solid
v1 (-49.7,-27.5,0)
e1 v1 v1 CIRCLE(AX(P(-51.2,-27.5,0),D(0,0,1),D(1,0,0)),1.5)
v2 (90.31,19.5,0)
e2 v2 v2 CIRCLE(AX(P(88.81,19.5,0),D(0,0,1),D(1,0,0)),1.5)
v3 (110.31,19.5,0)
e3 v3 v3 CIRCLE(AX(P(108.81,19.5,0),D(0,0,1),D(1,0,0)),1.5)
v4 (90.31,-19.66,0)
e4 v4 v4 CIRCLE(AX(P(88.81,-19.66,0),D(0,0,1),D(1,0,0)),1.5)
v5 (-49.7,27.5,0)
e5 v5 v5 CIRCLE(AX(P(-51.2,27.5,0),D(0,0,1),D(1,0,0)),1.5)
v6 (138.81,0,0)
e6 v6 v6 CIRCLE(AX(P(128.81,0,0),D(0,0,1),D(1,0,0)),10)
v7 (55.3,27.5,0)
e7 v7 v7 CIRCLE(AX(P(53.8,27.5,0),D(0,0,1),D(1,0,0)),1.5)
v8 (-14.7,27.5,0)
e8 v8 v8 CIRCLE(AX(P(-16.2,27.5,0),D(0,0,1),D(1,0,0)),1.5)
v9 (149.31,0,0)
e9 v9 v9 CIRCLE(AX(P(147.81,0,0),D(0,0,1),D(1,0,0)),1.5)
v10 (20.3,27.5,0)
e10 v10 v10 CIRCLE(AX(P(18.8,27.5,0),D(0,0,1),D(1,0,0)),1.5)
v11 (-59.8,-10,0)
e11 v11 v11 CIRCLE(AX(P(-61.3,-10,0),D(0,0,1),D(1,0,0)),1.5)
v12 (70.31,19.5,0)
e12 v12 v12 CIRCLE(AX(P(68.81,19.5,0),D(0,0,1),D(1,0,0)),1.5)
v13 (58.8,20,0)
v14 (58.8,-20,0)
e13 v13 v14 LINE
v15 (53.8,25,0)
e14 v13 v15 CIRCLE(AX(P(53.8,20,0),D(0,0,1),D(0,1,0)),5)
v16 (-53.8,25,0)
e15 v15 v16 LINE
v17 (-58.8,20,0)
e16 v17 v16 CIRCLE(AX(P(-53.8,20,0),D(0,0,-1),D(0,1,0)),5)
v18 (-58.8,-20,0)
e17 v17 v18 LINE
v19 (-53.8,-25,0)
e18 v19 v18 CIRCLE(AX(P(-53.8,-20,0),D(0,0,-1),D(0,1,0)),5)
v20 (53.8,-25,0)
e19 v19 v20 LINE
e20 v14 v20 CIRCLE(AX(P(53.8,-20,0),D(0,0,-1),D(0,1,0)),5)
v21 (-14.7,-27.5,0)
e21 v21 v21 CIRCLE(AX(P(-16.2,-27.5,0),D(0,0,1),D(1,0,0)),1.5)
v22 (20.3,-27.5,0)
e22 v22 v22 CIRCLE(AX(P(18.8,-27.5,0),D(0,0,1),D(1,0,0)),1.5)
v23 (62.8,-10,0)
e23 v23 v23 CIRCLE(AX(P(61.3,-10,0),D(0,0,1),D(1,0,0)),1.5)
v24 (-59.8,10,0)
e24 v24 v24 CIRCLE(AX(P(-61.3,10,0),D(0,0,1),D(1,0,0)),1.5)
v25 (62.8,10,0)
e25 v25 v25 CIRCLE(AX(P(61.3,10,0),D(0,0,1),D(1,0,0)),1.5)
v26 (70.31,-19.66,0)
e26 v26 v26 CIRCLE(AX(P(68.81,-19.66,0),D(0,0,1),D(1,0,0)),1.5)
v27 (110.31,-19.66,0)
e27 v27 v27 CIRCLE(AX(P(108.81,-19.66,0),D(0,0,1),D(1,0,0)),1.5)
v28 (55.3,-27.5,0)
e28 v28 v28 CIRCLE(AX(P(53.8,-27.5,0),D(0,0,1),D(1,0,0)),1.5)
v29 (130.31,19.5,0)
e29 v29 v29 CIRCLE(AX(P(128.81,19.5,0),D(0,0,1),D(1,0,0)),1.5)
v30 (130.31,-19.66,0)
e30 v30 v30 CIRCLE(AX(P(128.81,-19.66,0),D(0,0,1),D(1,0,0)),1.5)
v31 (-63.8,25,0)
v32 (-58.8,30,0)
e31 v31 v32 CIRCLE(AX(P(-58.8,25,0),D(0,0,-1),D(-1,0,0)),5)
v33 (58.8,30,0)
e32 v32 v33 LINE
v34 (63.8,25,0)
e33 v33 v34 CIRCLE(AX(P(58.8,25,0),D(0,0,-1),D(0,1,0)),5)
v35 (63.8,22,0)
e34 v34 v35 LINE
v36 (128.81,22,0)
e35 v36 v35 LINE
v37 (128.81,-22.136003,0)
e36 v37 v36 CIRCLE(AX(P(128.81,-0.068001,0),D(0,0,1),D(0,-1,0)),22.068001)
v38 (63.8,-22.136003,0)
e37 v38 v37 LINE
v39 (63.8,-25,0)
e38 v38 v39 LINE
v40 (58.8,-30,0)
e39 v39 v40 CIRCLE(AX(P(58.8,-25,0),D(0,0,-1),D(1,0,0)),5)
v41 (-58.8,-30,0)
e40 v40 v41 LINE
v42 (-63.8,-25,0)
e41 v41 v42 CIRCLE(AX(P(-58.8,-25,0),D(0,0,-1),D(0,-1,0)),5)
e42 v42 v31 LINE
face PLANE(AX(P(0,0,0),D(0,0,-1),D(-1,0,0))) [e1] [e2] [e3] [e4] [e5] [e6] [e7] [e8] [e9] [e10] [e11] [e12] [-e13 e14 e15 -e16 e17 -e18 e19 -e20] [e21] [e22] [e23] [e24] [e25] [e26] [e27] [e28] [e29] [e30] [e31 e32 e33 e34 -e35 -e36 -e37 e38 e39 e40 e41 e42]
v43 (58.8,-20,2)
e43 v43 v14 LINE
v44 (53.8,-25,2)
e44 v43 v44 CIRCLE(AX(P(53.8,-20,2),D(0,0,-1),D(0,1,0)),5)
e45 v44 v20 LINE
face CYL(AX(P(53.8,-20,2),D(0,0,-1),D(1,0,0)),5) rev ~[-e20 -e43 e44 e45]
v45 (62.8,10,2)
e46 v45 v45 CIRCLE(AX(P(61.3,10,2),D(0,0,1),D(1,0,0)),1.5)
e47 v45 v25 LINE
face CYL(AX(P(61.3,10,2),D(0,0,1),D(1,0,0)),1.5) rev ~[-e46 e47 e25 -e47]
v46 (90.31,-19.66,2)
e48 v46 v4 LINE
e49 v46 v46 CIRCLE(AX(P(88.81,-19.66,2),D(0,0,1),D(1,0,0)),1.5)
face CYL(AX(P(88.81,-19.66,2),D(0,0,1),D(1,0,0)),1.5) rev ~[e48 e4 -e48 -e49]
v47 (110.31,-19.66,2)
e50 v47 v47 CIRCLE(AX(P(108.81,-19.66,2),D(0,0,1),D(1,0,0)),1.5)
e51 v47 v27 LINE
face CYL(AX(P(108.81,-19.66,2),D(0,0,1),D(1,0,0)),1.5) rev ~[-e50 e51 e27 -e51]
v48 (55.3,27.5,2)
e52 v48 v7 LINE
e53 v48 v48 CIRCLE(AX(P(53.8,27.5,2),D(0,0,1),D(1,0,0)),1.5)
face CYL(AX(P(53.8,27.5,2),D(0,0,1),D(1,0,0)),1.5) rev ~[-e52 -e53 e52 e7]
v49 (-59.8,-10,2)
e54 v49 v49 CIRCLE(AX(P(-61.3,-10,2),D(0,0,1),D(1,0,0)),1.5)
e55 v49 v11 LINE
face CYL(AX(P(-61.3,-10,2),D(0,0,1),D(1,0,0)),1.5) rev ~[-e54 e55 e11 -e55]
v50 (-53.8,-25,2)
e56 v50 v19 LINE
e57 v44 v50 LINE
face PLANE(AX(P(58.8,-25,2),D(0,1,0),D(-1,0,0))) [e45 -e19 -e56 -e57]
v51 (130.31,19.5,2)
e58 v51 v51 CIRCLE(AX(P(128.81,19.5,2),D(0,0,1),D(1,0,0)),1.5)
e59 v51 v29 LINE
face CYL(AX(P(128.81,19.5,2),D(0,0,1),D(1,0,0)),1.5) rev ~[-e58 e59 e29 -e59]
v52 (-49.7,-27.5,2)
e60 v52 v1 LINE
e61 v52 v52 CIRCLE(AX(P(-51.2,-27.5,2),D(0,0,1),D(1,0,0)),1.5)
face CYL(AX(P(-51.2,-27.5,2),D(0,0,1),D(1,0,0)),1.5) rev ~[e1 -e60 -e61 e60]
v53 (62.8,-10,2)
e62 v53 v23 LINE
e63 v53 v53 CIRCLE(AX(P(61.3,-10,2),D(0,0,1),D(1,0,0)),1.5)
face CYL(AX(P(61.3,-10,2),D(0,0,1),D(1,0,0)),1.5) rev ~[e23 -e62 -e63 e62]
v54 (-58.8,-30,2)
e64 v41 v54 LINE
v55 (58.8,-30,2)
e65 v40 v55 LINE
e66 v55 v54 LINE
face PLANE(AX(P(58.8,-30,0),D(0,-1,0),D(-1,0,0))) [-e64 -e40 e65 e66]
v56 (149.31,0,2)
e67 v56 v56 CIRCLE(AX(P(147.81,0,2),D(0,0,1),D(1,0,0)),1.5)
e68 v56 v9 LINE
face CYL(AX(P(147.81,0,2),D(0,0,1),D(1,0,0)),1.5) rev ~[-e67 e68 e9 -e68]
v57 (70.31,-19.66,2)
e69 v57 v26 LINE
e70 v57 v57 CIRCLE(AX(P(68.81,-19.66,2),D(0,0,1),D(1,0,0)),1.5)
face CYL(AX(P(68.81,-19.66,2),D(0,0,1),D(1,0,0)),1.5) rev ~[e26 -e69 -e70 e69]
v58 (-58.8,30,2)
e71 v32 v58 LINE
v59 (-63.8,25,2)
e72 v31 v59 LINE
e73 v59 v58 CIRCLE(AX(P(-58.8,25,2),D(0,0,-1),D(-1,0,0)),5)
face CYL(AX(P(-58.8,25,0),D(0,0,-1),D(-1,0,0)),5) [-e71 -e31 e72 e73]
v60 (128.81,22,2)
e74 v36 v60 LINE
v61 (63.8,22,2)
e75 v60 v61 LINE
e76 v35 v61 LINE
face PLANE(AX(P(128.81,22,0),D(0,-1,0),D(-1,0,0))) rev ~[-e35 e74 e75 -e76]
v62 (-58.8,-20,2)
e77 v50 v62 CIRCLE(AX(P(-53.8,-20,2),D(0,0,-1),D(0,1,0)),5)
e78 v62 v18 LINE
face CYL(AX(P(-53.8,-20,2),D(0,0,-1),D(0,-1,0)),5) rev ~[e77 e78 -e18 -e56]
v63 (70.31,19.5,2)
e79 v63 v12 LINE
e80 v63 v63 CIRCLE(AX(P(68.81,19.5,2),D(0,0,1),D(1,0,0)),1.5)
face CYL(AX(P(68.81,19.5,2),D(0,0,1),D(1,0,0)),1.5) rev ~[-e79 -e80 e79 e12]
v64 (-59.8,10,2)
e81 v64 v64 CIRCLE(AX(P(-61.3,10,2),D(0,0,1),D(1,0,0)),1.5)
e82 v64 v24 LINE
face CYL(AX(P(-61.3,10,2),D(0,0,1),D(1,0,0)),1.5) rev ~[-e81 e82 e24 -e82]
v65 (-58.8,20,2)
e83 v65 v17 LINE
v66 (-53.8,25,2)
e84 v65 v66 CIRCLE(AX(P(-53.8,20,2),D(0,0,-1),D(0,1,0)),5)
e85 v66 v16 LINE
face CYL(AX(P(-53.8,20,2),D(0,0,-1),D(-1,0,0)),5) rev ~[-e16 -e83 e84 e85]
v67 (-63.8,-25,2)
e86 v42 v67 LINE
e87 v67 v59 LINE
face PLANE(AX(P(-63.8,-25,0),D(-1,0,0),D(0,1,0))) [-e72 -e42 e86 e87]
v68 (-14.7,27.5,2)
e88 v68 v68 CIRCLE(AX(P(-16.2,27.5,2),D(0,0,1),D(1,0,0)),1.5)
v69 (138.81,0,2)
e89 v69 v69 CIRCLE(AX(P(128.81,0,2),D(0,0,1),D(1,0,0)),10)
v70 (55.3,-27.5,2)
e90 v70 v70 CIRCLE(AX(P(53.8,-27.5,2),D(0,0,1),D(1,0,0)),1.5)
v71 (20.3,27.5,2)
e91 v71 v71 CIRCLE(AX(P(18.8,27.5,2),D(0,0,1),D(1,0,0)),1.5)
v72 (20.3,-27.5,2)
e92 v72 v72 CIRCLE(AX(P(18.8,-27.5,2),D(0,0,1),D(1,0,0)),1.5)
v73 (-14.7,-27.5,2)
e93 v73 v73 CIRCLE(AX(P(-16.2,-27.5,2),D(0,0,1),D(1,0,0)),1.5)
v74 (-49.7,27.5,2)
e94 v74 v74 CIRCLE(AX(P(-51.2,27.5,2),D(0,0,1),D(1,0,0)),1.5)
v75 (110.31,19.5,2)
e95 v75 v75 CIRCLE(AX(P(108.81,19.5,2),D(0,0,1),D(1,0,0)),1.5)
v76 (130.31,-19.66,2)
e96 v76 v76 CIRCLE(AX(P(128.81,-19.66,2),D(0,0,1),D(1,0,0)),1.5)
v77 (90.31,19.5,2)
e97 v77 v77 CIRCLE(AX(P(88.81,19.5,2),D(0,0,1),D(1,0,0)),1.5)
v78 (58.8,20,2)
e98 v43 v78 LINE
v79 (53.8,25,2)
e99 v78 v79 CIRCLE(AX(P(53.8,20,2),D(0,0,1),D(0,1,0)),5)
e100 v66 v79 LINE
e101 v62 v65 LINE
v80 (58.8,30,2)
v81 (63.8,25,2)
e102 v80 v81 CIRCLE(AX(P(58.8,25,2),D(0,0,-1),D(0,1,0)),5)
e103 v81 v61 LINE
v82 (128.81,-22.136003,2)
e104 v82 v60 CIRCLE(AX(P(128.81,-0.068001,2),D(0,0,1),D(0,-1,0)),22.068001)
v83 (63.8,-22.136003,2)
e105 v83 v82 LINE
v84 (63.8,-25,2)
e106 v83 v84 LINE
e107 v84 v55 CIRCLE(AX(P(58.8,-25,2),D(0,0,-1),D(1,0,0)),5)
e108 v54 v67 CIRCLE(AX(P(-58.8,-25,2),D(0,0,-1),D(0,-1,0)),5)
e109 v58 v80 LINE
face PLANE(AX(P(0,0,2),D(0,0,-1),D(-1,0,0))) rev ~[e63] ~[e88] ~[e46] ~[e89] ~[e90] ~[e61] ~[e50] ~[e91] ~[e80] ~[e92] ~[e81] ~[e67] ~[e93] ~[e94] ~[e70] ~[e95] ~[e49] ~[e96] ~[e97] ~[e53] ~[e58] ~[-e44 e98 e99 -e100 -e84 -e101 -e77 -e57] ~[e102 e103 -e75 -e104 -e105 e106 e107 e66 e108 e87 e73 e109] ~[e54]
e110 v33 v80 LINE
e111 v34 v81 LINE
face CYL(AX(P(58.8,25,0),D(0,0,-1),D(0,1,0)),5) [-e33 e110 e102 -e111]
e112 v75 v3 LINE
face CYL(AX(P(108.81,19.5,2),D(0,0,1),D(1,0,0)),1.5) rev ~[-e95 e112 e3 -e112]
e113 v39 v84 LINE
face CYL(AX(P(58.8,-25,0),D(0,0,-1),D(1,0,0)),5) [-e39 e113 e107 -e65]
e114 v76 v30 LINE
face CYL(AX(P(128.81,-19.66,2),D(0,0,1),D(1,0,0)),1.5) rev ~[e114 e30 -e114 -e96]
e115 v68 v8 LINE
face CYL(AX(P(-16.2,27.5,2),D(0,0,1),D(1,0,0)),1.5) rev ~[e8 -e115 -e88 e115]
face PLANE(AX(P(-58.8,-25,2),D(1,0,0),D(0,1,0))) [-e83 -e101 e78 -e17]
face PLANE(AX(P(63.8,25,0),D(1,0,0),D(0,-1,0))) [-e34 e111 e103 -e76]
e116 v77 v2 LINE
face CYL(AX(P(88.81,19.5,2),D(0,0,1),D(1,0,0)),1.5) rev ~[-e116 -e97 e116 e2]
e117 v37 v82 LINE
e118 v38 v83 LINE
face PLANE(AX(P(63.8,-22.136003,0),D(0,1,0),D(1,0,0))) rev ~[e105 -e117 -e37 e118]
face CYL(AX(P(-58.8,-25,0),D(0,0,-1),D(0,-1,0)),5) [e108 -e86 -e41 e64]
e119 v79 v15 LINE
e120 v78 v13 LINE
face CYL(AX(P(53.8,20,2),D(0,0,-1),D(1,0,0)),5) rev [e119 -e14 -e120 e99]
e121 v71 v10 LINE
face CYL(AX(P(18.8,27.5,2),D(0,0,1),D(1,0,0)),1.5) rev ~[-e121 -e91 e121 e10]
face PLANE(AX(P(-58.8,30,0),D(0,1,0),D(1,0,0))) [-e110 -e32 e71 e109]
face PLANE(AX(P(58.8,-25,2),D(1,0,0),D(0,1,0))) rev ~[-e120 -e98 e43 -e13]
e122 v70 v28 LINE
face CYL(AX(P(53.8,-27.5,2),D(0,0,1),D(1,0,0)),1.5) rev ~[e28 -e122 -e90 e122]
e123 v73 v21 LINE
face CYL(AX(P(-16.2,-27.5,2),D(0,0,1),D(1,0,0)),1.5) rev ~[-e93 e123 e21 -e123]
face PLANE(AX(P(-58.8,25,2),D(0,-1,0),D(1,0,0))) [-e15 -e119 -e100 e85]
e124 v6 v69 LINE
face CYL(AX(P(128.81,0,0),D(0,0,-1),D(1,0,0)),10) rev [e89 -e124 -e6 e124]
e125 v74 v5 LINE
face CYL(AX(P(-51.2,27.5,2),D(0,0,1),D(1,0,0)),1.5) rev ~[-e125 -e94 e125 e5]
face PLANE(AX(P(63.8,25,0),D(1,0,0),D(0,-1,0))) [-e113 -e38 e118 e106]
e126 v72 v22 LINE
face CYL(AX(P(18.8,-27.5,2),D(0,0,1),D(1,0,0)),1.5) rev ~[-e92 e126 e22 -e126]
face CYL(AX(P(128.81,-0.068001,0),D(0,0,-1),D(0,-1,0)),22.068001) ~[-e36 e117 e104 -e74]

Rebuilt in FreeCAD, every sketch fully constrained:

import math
import FreeCAD as App
import Part
import Sketcher


def edges_at(feature, points):
    """Names of the edges that pass closest to the given points."""
    edges = feature.Shape.Edges
    near = lambda p: min(range(len(edges)), key=lambda i: edges[i].distToShape(Part.Vertex(*p))[0])
    return sorted({f"Edge{near(p) + 1}" for p in points})


def add_polygon(sketch, points):
    """Adds a closed chain of lines whose ends are joined by coincident constraints."""
    first, n = sketch.GeometryCount, len(points)
    for a, b in zip(points, points[1:] + points[:1]):
        sketch.addGeometry(Part.LineSegment(App.Vector(*a, 0), App.Vector(*b, 0)), False)
    for i in range(n):
        sketch.addConstraint(Sketcher.Constraint("Coincident", first + i, 2, first + (i + 1) % n, 1))

doc = App.newDocument("Part")
body = doc.addObject("PartDesign::Body", "Body")

# Sketch on XY plane
sketch1 = body.newObject("Sketcher::SketchObject", "Sketch")
sketch1.AttachmentSupport = (doc.getObject("XY_Plane"), [""])
sketch1.MapMode = "FlatFace"
sketch1.addGeometry([
    Part.LineSegment(App.Vector(128.81, 22, 0), App.Vector(63.8, 22, 0)),  # 0
    Part.LineSegment(App.Vector(63.8, 22, 0), App.Vector(63.8, 25, 0)),  # 1
    Part.ArcOfCircle(Part.Circle(App.Vector(58.8, 25, 0), App.Vector(0, 0, 1), 5), math.radians(0), math.radians(90)),  # 2
    Part.LineSegment(App.Vector(58.8, 30, 0), App.Vector(-58.8, 30, 0)),  # 3
    Part.ArcOfCircle(Part.Circle(App.Vector(-58.8, 25, 0), App.Vector(0, 0, 1), 5), math.radians(90), math.radians(180)),  # 4
    Part.LineSegment(App.Vector(-63.8, 25, 0), App.Vector(-63.8, -25, 0)),  # 5
    Part.ArcOfCircle(Part.Circle(App.Vector(-58.8, -25, 0), App.Vector(0, 0, 1), 5), math.radians(180), math.radians(270)),  # 6
    Part.LineSegment(App.Vector(-58.8, -30, 0), App.Vector(58.8, -30, 0)),  # 7
    Part.ArcOfCircle(Part.Circle(App.Vector(58.8, -25, 0), App.Vector(0, 0, 1), 5), math.radians(-90), math.radians(0)),  # 8
    Part.LineSegment(App.Vector(63.8, -25, 0), App.Vector(63.8, -22.136003, 0)),  # 9
    Part.LineSegment(App.Vector(63.8, -22.136003, 0), App.Vector(128.81, -22.136003, 0)),  # 10
    Part.ArcOfCircle(Part.Circle(App.Vector(128.81, -0.068001, 0), App.Vector(0, 0, 1), 22.068001), math.radians(-90), math.radians(90)),  # 11
    Part.Circle(App.Vector(128.81, 0, 0), App.Vector(0, 0, 1), 10),  # 12
], False)
sketch1.addConstraint([
    Sketcher.Constraint("Coincident", 0, 2, 1, 1),
    Sketcher.Constraint("Tangent", 1, 2, 2, 1),
    Sketcher.Constraint("Tangent", 2, 2, 3, 1),
    Sketcher.Constraint("Tangent", 3, 2, 4, 1),
    Sketcher.Constraint("Tangent", 4, 2, 5, 1),
    Sketcher.Constraint("Tangent", 5, 2, 6, 1),
    Sketcher.Constraint("Tangent", 6, 2, 7, 1),
    Sketcher.Constraint("Tangent", 7, 2, 8, 1),
    Sketcher.Constraint("Tangent", 8, 2, 9, 1),
    Sketcher.Constraint("Coincident", 9, 2, 10, 1),
    Sketcher.Constraint("Tangent", 10, 2, 11, 1),
    Sketcher.Constraint("Tangent", 11, 2, 0, 1),
    Sketcher.Constraint("Horizontal", 0),
    Sketcher.Constraint("Vertical", 1),
    Sketcher.Constraint("Horizontal", 3),
    Sketcher.Constraint("Vertical", 5),
    Sketcher.Constraint("Horizontal", 7),
    Sketcher.Constraint("Vertical", 9),
    Sketcher.Constraint("Horizontal", 10),
    Sketcher.Constraint("Equal", 2, 4),
    Sketcher.Constraint("Equal", 4, 6),
    Sketcher.Constraint("Equal", 6, 8),
    Sketcher.Constraint("Symmetric", 2, 3, 6, 3, -1, 1),
    Sketcher.Constraint("PointOnObject", 12, 3, -1),
    Sketcher.Constraint("Vertical", 2, 3, 8, 3),
    Sketcher.Constraint("Vertical", 11, 3, 12, 3),
    Sketcher.Constraint("Diameter", 12, 20.0),
    Sketcher.Constraint("Radius", 2, 5.0),
    Sketcher.Constraint("DistanceY", 1, 1, 1, 2, 3.0),
    Sketcher.Constraint("DistanceY", 5, 2, 5, 1, 50.0),
    Sketcher.Constraint("DistanceX", 3, 2, 3, 1, 117.6),
    Sketcher.Constraint("Radius", 11, 22.068001),
    Sketcher.Constraint("DistanceX", 0, 2, 0, 1, 65.01),
])
pad1 = body.newObject("PartDesign::Pad", "Pad")
pad1.Profile = sketch1
pad1.Length = 2

# Sketch on XY plane
sketch2 = body.newObject("Sketcher::SketchObject", "Sketch001")
sketch2.AttachmentSupport = (doc.getObject("XY_Plane"), [""])
sketch2.MapMode = "FlatFace"
sketch2.AttachmentOffset = App.Placement(App.Vector(0, 0, 2), App.Rotation())
add_polygon(sketch2, [(58.8, -25), (58.8, 25), (-58.8, 25), (-58.8, -25)])  # lines 0-3
sketch2.addConstraint([
    Sketcher.Constraint("Vertical", 0),
    Sketcher.Constraint("Horizontal", 1),
    Sketcher.Constraint("Vertical", 2),
    Sketcher.Constraint("Horizontal", 3),
    Sketcher.Constraint("Symmetric", 0, 2, 2, 2, -1, 1),
    Sketcher.Constraint("DistanceY", 0, 1, 0, 2, 50.0),
    Sketcher.Constraint("DistanceX", 1, 2, 1, 1, 117.6),
])
pocket1 = body.newObject("PartDesign::Pocket", "Pocket")
pocket1.Profile = sketch2
pocket1.Length = 5
doc.recompute()

fillet = body.newObject("PartDesign::Fillet", "Fillet")
fillet.Base = (pocket1, edges_at(pocket1, [
    (58.8, -25, 1),
    (-58.8, -25, 1),
    (-58.8, 25, 1),
    (58.8, 25, 1),
]))
fillet.Radius = 5

# Sketch on XY plane
sketch3 = body.newObject("Sketcher::SketchObject", "Sketch002")
sketch3.AttachmentSupport = (doc.getObject("XY_Plane"), [""])
sketch3.MapMode = "FlatFace"
sketch3.AttachmentOffset = App.Placement(App.Vector(0, 0, 2), App.Rotation())
sketch3.addGeometry([
    Part.Circle(App.Vector(-51.2, 27.5, 0), App.Vector(0, 0, 1), 1.5),  # 0
    Part.Circle(App.Vector(-16.2, 27.5, 0), App.Vector(0, 0, 1), 1.5),  # 1
    Part.Circle(App.Vector(18.8, 27.5, 0), App.Vector(0, 0, 1), 1.5),  # 2
    Part.Circle(App.Vector(53.8, 27.5, 0), App.Vector(0, 0, 1), 1.5),  # 3
    Part.Circle(App.Vector(61.3, 10, 0), App.Vector(0, 0, 1), 1.5),  # 4
    Part.Circle(App.Vector(61.3, -10, 0), App.Vector(0, 0, 1), 1.5),  # 5
    Part.Circle(App.Vector(53.8, -27.5, 0), App.Vector(0, 0, 1), 1.5),  # 6
    Part.Circle(App.Vector(18.8, -27.5, 0), App.Vector(0, 0, 1), 1.5),  # 7
    Part.Circle(App.Vector(-16.2, -27.5, 0), App.Vector(0, 0, 1), 1.5),  # 8
    Part.Circle(App.Vector(-51.2, -27.5, 0), App.Vector(0, 0, 1), 1.5),  # 9
    Part.Circle(App.Vector(-61.3, -10, 0), App.Vector(0, 0, 1), 1.5),  # 10
    Part.Circle(App.Vector(-61.3, 10, 0), App.Vector(0, 0, 1), 1.5),  # 11
], False)
sketch3.addConstraint([
    Sketcher.Constraint("Equal", 0, 1),
    Sketcher.Constraint("Equal", 1, 2),
    Sketcher.Constraint("Equal", 2, 3),
    Sketcher.Constraint("Equal", 3, 4),
    Sketcher.Constraint("Equal", 4, 5),
    Sketcher.Constraint("Equal", 5, 6),
    Sketcher.Constraint("Equal", 6, 7),
    Sketcher.Constraint("Equal", 7, 8),
    Sketcher.Constraint("Equal", 8, 9),
    Sketcher.Constraint("Equal", 9, 10),
    Sketcher.Constraint("Equal", 10, 11),
    Sketcher.Constraint("Symmetric", 4, 3, 10, 3, -1, 1),
    Sketcher.Constraint("Symmetric", 5, 3, 11, 3, -1, 1),
    Sketcher.Constraint("Symmetric", 5, 3, 10, 3, -2),
    Sketcher.Constraint("Symmetric", 3, 3, 6, 3, -1),
    Sketcher.Constraint("Symmetric", 2, 3, 7, 3, -1),
    Sketcher.Constraint("Symmetric", 1, 3, 8, 3, -1),
    Sketcher.Constraint("Symmetric", 0, 3, 9, 3, -1),
    Sketcher.Constraint("Horizontal", 0, 3, 1, 3),
    Sketcher.Constraint("Horizontal", 1, 3, 2, 3),
    Sketcher.Constraint("Horizontal", 2, 3, 3, 3),
    Sketcher.Constraint("Diameter", 0, 3.0),
    Sketcher.Constraint("DistanceY", -1, 1, 4, 3, 10.0),
    Sketcher.Constraint("DistanceX", 0, 3, 1, 3, 35.0),
    Sketcher.Constraint("DistanceX", 1, 3, 2, 3, 35.0),
    Sketcher.Constraint("DistanceX", 2, 3, 3, 3, 35.0),
    Sketcher.Constraint("DistanceY", 6, 3, 3, 3, 55.0),
    Sketcher.Constraint("DistanceX", 0, 3, -1, 1, 51.2),
    Sketcher.Constraint("DistanceX", -1, 1, 4, 3, 61.3),
])
pocket2 = body.newObject("PartDesign::Pocket", "Pocket001")
pocket2.Profile = sketch3
pocket2.Length = 5

# Sketch on XY plane
sketch4 = body.newObject("Sketcher::SketchObject", "Sketch003")
sketch4.AttachmentSupport = (doc.getObject("XY_Plane"), [""])
sketch4.MapMode = "FlatFace"
sketch4.AttachmentOffset = App.Placement(App.Vector(0, 0, 2), App.Rotation())
sketch4.addGeometry([
    Part.Circle(App.Vector(68.81, 19.5, 0), App.Vector(0, 0, 1), 1.5),  # 0
    Part.Circle(App.Vector(88.81, 19.5, 0), App.Vector(0, 0, 1), 1.5),  # 1
    Part.Circle(App.Vector(108.81, 19.5, 0), App.Vector(0, 0, 1), 1.5),  # 2
    Part.Circle(App.Vector(128.81, 19.5, 0), App.Vector(0, 0, 1), 1.5),  # 3
    Part.Circle(App.Vector(88.81, -19.66, 0), App.Vector(0, 0, 1), 1.5),  # 4
    Part.Circle(App.Vector(108.81, -19.66, 0), App.Vector(0, 0, 1), 1.5),  # 5
    Part.Circle(App.Vector(128.81, -19.66, 0), App.Vector(0, 0, 1), 1.5),  # 6
    Part.Circle(App.Vector(68.81, -19.66, 0), App.Vector(0, 0, 1), 1.5),  # 7
    Part.Circle(App.Vector(147.81, 0, 0), App.Vector(0, 0, 1), 1.5),  # 8
], False)
sketch4.addConstraint([
    Sketcher.Constraint("Equal", 0, 1),
    Sketcher.Constraint("Equal", 1, 2),
    Sketcher.Constraint("Equal", 2, 3),
    Sketcher.Constraint("Equal", 3, 4),
    Sketcher.Constraint("Equal", 4, 5),
    Sketcher.Constraint("Equal", 5, 6),
    Sketcher.Constraint("Equal", 6, 7),
    Sketcher.Constraint("Equal", 7, 8),
    Sketcher.Constraint("PointOnObject", 8, 3, -1),
    Sketcher.Constraint("Horizontal", 0, 3, 1, 3),
    Sketcher.Constraint("Horizontal", 1, 3, 2, 3),
    Sketcher.Constraint("Horizontal", 2, 3, 3, 3),
    Sketcher.Constraint("Horizontal", 4, 3, 5, 3),
    Sketcher.Constraint("Horizontal", 5, 3, 6, 3),
    Sketcher.Constraint("Horizontal", 6, 3, 7, 3),
    Sketcher.Constraint("Vertical", 1, 3, 4, 3),
    Sketcher.Constraint("Vertical", 2, 3, 5, 3),
    Sketcher.Constraint("Vertical", 3, 3, 6, 3),
    Sketcher.Constraint("Vertical", 0, 3, 7, 3),
    Sketcher.Constraint("Diameter", 0, 3.0),
    Sketcher.Constraint("DistanceX", 0, 3, 1, 3, 20.0),
    Sketcher.Constraint("DistanceX", 1, 3, 2, 3, 20.0),
    Sketcher.Constraint("DistanceX", 2, 3, 3, 3, 20.0),
    Sketcher.Constraint("DistanceX", 3, 3, 8, 3, 19.0),
    Sketcher.Constraint("DistanceY", -1, 1, 0, 3, 19.5),
    Sketcher.Constraint("DistanceX", -1, 1, 0, 3, 68.81),
    Sketcher.Constraint("DistanceY", 4, 3, -1, 1, 19.66),
])
pocket3 = body.newObject("PartDesign::Pocket", "Pocket002")
pocket3.Profile = sketch4
pocket3.Type = "ThroughAll"

doc.recompute()
